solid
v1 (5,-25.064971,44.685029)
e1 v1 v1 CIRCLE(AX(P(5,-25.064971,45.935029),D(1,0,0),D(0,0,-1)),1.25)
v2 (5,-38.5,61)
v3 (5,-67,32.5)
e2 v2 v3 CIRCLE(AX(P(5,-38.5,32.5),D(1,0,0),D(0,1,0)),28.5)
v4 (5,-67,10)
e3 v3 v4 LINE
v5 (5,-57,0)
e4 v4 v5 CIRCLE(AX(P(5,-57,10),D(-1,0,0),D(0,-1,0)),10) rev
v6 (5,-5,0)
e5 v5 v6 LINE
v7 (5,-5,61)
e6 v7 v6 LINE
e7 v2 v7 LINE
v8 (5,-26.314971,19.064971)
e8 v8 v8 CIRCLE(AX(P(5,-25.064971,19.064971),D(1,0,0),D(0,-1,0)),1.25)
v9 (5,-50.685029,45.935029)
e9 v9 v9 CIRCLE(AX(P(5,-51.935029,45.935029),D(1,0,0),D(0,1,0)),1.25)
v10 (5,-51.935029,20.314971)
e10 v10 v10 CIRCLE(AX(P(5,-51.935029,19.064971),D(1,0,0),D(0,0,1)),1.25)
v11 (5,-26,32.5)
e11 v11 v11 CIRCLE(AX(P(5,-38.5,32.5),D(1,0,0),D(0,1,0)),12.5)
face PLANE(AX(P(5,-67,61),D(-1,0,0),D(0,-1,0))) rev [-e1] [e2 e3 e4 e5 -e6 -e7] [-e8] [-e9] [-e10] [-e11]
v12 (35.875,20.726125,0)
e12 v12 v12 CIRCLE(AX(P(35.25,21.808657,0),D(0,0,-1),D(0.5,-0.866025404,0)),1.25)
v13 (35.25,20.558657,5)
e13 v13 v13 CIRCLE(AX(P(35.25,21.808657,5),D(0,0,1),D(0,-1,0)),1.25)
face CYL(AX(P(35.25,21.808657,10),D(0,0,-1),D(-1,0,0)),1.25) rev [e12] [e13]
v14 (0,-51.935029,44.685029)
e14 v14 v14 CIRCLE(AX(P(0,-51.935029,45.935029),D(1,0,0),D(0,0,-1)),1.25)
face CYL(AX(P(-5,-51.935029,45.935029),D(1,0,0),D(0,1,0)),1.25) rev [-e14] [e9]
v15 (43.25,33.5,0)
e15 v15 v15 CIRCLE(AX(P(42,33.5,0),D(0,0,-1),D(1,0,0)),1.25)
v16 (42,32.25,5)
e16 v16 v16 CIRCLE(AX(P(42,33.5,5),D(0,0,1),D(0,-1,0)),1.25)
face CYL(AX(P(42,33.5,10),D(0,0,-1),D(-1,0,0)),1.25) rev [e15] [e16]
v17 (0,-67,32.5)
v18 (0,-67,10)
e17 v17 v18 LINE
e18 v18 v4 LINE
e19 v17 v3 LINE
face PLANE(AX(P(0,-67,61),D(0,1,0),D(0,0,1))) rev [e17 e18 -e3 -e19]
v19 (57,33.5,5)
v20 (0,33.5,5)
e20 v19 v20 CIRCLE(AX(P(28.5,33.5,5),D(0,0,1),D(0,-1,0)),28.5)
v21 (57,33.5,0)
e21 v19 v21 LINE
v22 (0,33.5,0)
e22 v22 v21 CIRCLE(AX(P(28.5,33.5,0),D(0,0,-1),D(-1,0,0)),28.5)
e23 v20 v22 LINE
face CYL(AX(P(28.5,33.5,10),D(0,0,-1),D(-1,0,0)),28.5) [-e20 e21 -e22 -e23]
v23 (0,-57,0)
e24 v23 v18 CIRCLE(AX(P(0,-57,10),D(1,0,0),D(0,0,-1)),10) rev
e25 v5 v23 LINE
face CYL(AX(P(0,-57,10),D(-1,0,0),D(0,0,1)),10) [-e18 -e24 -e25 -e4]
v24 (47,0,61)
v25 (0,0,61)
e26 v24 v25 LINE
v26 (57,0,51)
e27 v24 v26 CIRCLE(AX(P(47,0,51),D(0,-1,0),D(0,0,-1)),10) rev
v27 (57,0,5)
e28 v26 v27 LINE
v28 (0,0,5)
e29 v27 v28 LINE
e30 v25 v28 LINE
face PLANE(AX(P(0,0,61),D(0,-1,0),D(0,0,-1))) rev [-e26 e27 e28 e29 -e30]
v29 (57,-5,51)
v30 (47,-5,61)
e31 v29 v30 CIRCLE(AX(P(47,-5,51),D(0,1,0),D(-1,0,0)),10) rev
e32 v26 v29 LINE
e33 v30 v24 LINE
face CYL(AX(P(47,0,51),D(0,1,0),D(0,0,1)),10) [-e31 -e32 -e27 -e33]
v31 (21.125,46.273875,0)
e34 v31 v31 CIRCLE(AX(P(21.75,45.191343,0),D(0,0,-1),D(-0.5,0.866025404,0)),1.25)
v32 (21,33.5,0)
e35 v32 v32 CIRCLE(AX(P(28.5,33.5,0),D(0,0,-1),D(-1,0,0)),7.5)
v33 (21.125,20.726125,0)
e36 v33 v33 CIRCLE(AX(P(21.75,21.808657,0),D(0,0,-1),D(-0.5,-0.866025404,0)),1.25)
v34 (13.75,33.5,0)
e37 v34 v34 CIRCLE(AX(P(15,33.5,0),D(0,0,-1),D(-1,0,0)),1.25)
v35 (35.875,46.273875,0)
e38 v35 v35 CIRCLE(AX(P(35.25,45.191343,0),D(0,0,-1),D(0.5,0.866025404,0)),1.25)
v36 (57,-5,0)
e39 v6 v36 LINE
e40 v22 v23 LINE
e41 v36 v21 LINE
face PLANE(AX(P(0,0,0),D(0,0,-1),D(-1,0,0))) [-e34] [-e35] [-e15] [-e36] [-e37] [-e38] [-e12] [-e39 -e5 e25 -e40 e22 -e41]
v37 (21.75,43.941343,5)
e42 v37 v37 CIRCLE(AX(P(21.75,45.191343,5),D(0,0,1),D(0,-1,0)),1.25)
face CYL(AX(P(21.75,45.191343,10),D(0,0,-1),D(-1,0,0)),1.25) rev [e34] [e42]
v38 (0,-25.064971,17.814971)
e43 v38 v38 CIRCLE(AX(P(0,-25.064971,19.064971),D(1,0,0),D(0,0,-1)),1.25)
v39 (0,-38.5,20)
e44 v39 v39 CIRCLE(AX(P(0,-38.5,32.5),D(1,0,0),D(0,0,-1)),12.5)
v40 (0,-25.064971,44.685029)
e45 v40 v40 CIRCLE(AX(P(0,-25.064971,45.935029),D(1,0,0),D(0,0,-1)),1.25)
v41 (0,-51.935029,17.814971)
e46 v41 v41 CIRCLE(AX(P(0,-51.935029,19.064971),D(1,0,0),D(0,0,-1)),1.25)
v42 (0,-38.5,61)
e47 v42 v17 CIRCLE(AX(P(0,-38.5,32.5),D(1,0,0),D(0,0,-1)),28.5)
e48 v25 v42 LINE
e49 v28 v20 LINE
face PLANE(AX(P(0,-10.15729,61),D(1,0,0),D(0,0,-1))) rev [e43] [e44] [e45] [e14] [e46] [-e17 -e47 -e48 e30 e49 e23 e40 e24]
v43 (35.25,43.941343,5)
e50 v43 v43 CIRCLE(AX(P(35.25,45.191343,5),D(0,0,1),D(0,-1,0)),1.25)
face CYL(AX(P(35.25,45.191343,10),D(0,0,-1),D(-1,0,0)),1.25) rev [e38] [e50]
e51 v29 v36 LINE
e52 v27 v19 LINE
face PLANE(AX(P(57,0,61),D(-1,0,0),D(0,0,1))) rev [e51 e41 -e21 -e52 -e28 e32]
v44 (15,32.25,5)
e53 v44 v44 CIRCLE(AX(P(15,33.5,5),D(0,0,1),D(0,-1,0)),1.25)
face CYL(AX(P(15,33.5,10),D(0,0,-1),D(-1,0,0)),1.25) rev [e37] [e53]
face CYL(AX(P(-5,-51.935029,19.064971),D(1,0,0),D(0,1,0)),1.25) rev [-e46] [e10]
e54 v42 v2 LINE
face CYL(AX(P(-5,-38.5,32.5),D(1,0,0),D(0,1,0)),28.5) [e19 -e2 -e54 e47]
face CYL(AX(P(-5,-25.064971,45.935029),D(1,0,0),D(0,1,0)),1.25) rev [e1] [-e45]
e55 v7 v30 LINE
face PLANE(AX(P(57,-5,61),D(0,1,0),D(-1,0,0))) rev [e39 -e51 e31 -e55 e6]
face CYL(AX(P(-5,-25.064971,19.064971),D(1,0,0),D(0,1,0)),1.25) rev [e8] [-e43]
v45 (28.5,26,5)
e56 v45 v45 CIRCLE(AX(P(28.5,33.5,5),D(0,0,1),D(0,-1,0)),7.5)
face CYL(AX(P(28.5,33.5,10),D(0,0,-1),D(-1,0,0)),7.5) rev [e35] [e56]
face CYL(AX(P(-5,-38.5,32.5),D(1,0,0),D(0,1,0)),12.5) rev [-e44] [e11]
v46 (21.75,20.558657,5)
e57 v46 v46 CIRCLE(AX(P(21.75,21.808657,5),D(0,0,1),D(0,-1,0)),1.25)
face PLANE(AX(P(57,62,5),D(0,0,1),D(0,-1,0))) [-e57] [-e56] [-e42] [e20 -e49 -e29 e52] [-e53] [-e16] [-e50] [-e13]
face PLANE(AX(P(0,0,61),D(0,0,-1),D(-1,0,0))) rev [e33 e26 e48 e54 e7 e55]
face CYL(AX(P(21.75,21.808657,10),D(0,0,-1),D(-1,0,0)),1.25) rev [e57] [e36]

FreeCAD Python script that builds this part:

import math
import FreeCAD as App
import Part
import Sketcher
Q = App.Units.Quantity


def edges_at(feature, points):
    """Names of the edges that pass closest to the given points."""
    edges = feature.Shape.Edges
    near = lambda p: min(range(len(edges)), key=lambda i: edges[i].distToShape(Part.Vertex(*p))[0])
    return sorted({f"Edge{near(p) + 1}" for p in points})

doc = App.newDocument("Part")
body = doc.addObject("PartDesign::Body", "Body")

# Sketch on XY plane
sketch1 = body.newObject("Sketcher::SketchObject", "Sketch")
sketch1.AttachmentSupport = (doc.getObject("XY_Plane"), [""])
sketch1.MapMode = "FlatFace"
sketch1.addGeometry(Part.LineSegment(App.Vector(57, 0, 0), App.Vector(0, 0, 0)), False)
sketch1.addGeometry(Part.LineSegment(App.Vector(0, 0, 0), App.Vector(0, -67, 0)), False)
sketch1.addGeometry(Part.LineSegment(App.Vector(0, -67, 0), App.Vector(5, -67, 0)), False)
sketch1.addGeometry(Part.LineSegment(App.Vector(5, -67, 0), App.Vector(5, -5, 0)), False)
sketch1.addGeometry(Part.LineSegment(App.Vector(5, -5, 0), App.Vector(57, -5, 0)), False)
sketch1.addGeometry(Part.LineSegment(App.Vector(57, -5, 0), App.Vector(57, 0, 0)), False)
sketch1.addConstraint(Sketcher.Constraint("Coincident", 0, 2, 1, 1))
sketch1.addConstraint(Sketcher.Constraint("Coincident", 1, 2, 2, 1))
sketch1.addConstraint(Sketcher.Constraint("Coincident", 2, 2, 3, 1))
sketch1.addConstraint(Sketcher.Constraint("Coincident", 3, 2, 4, 1))
sketch1.addConstraint(Sketcher.Constraint("Coincident", 4, 2, 5, 1))
sketch1.addConstraint(Sketcher.Constraint("Coincident", 5, 2, 0, 1))
sketch1.addConstraint(Sketcher.Constraint("Horizontal", 0))
sketch1.addConstraint(Sketcher.Constraint("Vertical", 1))
sketch1.addConstraint(Sketcher.Constraint("Horizontal", 2))
sketch1.addConstraint(Sketcher.Constraint("Vertical", 3))
sketch1.addConstraint(Sketcher.Constraint("Horizontal", 4))
sketch1.addConstraint(Sketcher.Constraint("Vertical", 5))
sketch1.addConstraint(Sketcher.Constraint("Coincident", 0, 2, -1, 1))
sketch1.addConstraint(Sketcher.Constraint("Equal", 2, 5))
sketch1.addConstraint(Sketcher.Constraint("DistanceX", 0, 2, 0, 1, Q("57 mm")))
sketch1.addConstraint(Sketcher.Constraint("DistanceX", 2, 1, 2, 2, Q("5 mm")))
sketch1.addConstraint(Sketcher.Constraint("DistanceY", 1, 2, 1, 1, Q("67 mm")))
pad1 = body.newObject("PartDesign::Pad", "Pad")
pad1.Profile = sketch1
pad1.Length = 61

# Sketch on YZ plane
sketch2 = body.newObject("Sketcher::SketchObject", "Sketch001")
sketch2.AttachmentSupport = (doc.getObject("YZ_Plane"), [""])
sketch2.MapMode = "FlatFace"
sketch2.addGeometry(Part.LineSegment(App.Vector(62, 0, 0), App.Vector(0, 0, 0)), False)
sketch2.addGeometry(Part.LineSegment(App.Vector(0, 0, 0), App.Vector(0, 5, 0)), False)
sketch2.addGeometry(Part.LineSegment(App.Vector(0, 5, 0), App.Vector(62, 5, 0)), False)
sketch2.addGeometry(Part.LineSegment(App.Vector(62, 5, 0), App.Vector(62, 0, 0)), False)
sketch2.addConstraint(Sketcher.Constraint("Coincident", 0, 2, 1, 1))
sketch2.addConstraint(Sketcher.Constraint("Coincident", 1, 2, 2, 1))
sketch2.addConstraint(Sketcher.Constraint("Coincident", 2, 2, 3, 1))
sketch2.addConstraint(Sketcher.Constraint("Coincident", 3, 2, 0, 1))
sketch2.addConstraint(Sketcher.Constraint("Horizontal", 0))
sketch2.addConstraint(Sketcher.Constraint("Vertical", 1))
sketch2.addConstraint(Sketcher.Constraint("Horizontal", 2))
sketch2.addConstraint(Sketcher.Constraint("Vertical", 3))
sketch2.addConstraint(Sketcher.Constraint("Coincident", 0, 2, -1, 1))
sketch2.addConstraint(Sketcher.Constraint("DistanceX", 0, 2, 0, 1, Q("62 mm")))
sketch2.addConstraint(Sketcher.Constraint("DistanceY", 1, 1, 1, 2, Q("5 mm")))
pad2 = body.newObject("PartDesign::Pad", "Pad001")
pad2.Profile = sketch2
pad2.Length = 57

# Sketch on XY plane
sketch3 = body.newObject("Sketcher::SketchObject", "Sketch002")
sketch3.AttachmentSupport = (doc.getObject("XY_Plane"), [""])
sketch3.MapMode = "FlatFace"
sketch3.addGeometry(Part.ArcOfCircle(Part.Circle(App.Vector(29, 34, 0), App.Vector(0, 0, 1), 28), math.radians(0), math.radians(90)), False)
sketch3.addGeometry(Part.LineSegment(App.Vector(28, 62, 0), App.Vector(57, 62, 0)), False)
sketch3.addGeometry(Part.LineSegment(App.Vector(57, 62, 0), App.Vector(57, 34, 0)), False)
sketch3.addGeometry(Part.LineSegment(App.Vector(0, 34, 0), App.Vector(0, 62, 0)), False)
sketch3.addGeometry(Part.LineSegment(App.Vector(0, 62, 0), App.Vector(28, 62, 0)), False)
sketch3.addGeometry(Part.ArcOfCircle(Part.Circle(App.Vector(28, 34, 0), App.Vector(0, 0, 1), 28), math.radians(90), math.radians(180)), False)
sketch3.addConstraint(Sketcher.Constraint("Tangent", 0, 2, 1, 1))
sketch3.addConstraint(Sketcher.Constraint("Coincident", 1, 2, 2, 1))
sketch3.addConstraint(Sketcher.Constraint("Tangent", 2, 2, 0, 1))
sketch3.addConstraint(Sketcher.Constraint("Coincident", 3, 2, 4, 1))
sketch3.addConstraint(Sketcher.Constraint("Tangent", 4, 2, 5, 1))
sketch3.addConstraint(Sketcher.Constraint("Tangent", 5, 2, 3, 1))
sketch3.addConstraint(Sketcher.Constraint("Horizontal", 1))
sketch3.addConstraint(Sketcher.Constraint("Vertical", 2))
sketch3.addConstraint(Sketcher.Constraint("Vertical", 3))
sketch3.addConstraint(Sketcher.Constraint("Horizontal", 4))
sketch3.addConstraint(Sketcher.Constraint("Coincident", 5, 3, 0, 3))
sketch3.addConstraint(Sketcher.Constraint("Equal", 0, 5))
sketch3.addConstraint(Sketcher.Constraint("PointOnObject", 3, 2, -2))
sketch3.addConstraint(Sketcher.Constraint("Radius", 0, Q("28.5 mm")))
sketch3.addConstraint(Sketcher.Constraint("DistanceY", -1, 1, 0, 2, Q("62 mm")))
pocket1 = body.newObject("PartDesign::Pocket", "Pocket")
pocket1.Profile = sketch3
pocket1.Length = 10
pocket1.Reversed = True

# Sketch on XY plane
sketch4 = body.newObject("Sketcher::SketchObject", "Sketch003")
sketch4.AttachmentSupport = (doc.getObject("XY_Plane"), [""])
sketch4.MapMode = "FlatFace"
sketch4.addGeometry(Part.Circle(App.Vector(28.5, 33.5, 0), App.Vector(0, 0, 1), 7.5), False)
sketch4.addGeometry(Part.Circle(App.Vector(15, 33.5, 0), App.Vector(0, 0, 1), 1.2), False)
sketch4.addConstraint(Sketcher.Constraint("Horizontal", 0, 3, 1, 3))
sketch4.addConstraint(Sketcher.Constraint("Diameter", 0, Q("15 mm")))
sketch4.addConstraint(Sketcher.Constraint("Diameter", 1, Q("2.5 mm")))
sketch4.addConstraint(Sketcher.Constraint("DistanceX", -1, 1, 1, 3, Q("15 mm")))
sketch4.addConstraint(Sketcher.Constraint("DistanceX", -1, 1, 0, 3, Q("28.5 mm")))
sketch4.addConstraint(Sketcher.Constraint("DistanceY", -1, 1, 0, 3, Q("33.5 mm")))
pocket2 = body.newObject("PartDesign::Pocket", "Pocket001")
pocket2.Profile = sketch4
pocket2.Length = 10
pocket2.Reversed = True
doc.recompute()

datumline = body.newObject("PartDesign::Line", "DatumLine")
datumline.Placement = App.Placement(App.Vector(28.5, 33.5, 0), App.Rotation(App.Vector(0, 0, 1), App.Vector(0, 0, 1)))
polarpattern = body.newObject("PartDesign::PolarPattern", "PolarPattern")
polarpattern.Originals = [pocket2]
polarpattern.Axis = (datumline, [""])
polarpattern.Angle = 360
polarpattern.Occurrences = 6
body.Tip = polarpattern

# Sketch on YZ plane
sketch5 = body.newObject("Sketcher::SketchObject", "Sketch004")
sketch5.AttachmentSupport = (doc.getObject("YZ_Plane"), [""])
sketch5.MapMode = "FlatFace"
sketch5.AttachmentOffset = App.Placement(App.Vector(0, 0, 5), App.Rotation())
sketch5.addGeometry(Part.LineSegment(App.Vector(-38, 61, 0), App.Vector(-67, 61, 0)), False)
sketch5.addGeometry(Part.LineSegment(App.Vector(-67, 61, 0), App.Vector(-67, 32, 0)), False)
sketch5.addGeometry(Part.ArcOfCircle(Part.Circle(App.Vector(-39, 33, 0), App.Vector(0, 0, 1), 28), math.radians(90), math.radians(180)), False)
sketch5.addConstraint(Sketcher.Constraint("Coincident", 0, 2, 1, 1))
sketch5.addConstraint(Sketcher.Constraint("Tangent", 1, 2, 2, 2))
sketch5.addConstraint(Sketcher.Constraint("Tangent", 2, 1, 0, 1))
sketch5.addConstraint(Sketcher.Constraint("Horizontal", 0))
sketch5.addConstraint(Sketcher.Constraint("Vertical", 1))
sketch5.addConstraint(Sketcher.Constraint("Radius", 2, Q("28.5 mm")))
sketch5.addConstraint(Sketcher.Constraint("DistanceX", 0, 2, -1, 1, Q("67 mm")))
sketch5.addConstraint(Sketcher.Constraint("DistanceY", -1, 1, 0, 2, Q("61 mm")))
pocket3 = body.newObject("PartDesign::Pocket", "Pocket002")
pocket3.Profile = sketch5
pocket3.Length = 10
doc.recompute()

fillet = body.newObject("PartDesign::Fillet", "Fillet")
fillet.Base = (pocket3, edges_at(pocket3, [(57, -2.5, 61), (2.5, -67, 0)]))
fillet.Radius = 10

# Sketch on YZ plane
sketch6 = body.newObject("Sketcher::SketchObject", "Sketch005")
sketch6.AttachmentSupport = (doc.getObject("YZ_Plane"), [""])
sketch6.MapMode = "FlatFace"
sketch6.AttachmentOffset = App.Placement(App.Vector(0, 0, 5), App.Rotation())
sketch6.addGeometry(Part.Circle(App.Vector(-38.5, 32.5, 0), App.Vector(0, 0, 1), 12.5), False)
sketch6.addGeometry(Part.Circle(App.Vector(-51.9, 45.9, 0), App.Vector(0, 0, 1), 1.2), False)
sketch6.addConstraint(Sketcher.Constraint("Diameter", 0, Q("25 mm")))
sketch6.addConstraint(Sketcher.Constraint("Diameter", 1, Q("2.5 mm")))
sketch6.addConstraint(Sketcher.Constraint("DistanceX", 0, 3, -1, 1, Q("38.5 mm")))
sketch6.addConstraint(Sketcher.Constraint("DistanceY", -1, 1, 0, 3, Q("32.5 mm")))
sketch6.addConstraint(Sketcher.Constraint("DistanceX", 1, 3, -1, 1, Q("51.935029 mm")))
sketch6.addConstraint(Sketcher.Constraint("DistanceY", -1, 1, 1, 3, Q("45.935029 mm")))
pocket4 = body.newObject("PartDesign::Pocket", "Pocket003")
pocket4.Profile = sketch6
pocket4.Length = 10
doc.recompute()

datumline2 = body.newObject("PartDesign::Line", "DatumLine001")
datumline2.Placement = App.Placement(App.Vector(0, -38.5, 32.5), App.Rotation(App.Vector(0, 0, 1), App.Vector(1, 0, 0)))
polarpattern2 = body.newObject("PartDesign::PolarPattern", "PolarPattern001")
polarpattern2.Originals = [pocket4]
polarpattern2.Axis = (datumline2, [""])
polarpattern2.Angle = 360
polarpattern2.Occurrences = 4
body.Tip = polarpattern2

doc.recompute()
